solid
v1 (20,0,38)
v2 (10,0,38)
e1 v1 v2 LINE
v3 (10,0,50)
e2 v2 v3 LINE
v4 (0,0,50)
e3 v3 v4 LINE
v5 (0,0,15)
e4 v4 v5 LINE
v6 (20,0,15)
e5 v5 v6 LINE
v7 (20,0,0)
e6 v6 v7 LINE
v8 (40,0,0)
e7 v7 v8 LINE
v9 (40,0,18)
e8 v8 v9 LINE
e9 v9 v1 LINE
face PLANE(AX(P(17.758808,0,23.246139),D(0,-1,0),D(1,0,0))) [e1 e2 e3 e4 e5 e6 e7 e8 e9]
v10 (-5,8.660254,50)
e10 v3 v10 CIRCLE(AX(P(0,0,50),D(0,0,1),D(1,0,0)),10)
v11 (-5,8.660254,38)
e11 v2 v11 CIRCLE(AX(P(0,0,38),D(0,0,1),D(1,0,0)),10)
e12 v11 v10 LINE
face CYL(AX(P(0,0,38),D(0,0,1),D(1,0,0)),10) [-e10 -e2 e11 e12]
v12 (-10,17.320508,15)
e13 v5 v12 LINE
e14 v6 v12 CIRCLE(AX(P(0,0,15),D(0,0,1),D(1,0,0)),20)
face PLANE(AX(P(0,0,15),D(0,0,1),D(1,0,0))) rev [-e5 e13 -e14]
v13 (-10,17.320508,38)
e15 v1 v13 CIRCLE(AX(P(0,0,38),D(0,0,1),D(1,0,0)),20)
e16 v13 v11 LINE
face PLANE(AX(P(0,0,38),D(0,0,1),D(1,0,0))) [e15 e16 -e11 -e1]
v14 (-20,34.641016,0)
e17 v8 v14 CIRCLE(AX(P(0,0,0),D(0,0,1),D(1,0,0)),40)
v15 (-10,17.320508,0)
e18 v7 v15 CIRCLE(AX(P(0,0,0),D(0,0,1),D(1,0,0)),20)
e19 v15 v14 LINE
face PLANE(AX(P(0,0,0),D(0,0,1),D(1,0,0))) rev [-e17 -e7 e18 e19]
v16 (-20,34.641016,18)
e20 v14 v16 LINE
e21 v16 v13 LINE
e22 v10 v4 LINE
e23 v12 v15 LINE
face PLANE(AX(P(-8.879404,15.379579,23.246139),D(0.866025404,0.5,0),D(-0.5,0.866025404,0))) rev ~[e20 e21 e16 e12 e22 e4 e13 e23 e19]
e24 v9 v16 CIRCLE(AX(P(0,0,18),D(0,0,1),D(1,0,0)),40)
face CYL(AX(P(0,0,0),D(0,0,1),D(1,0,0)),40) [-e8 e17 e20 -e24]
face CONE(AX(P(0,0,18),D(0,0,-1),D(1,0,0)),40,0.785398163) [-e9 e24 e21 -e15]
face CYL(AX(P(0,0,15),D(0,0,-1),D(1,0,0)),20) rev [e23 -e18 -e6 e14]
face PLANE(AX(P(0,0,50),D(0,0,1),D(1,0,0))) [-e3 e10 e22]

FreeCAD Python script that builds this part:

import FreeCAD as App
import Part
import Sketcher


def add_polygon(sketch, points):
    """Adds a closed chain of lines whose ends are joined by coincident constraints."""
    first, n = sketch.GeometryCount, len(points)
    for a, b in zip(points, points[1:] + points[:1]):
        sketch.addGeometry(Part.LineSegment(App.Vector(*a, 0), App.Vector(*b, 0)), False)
    for i in range(n):
        sketch.addConstraint(Sketcher.Constraint("Coincident", first + i, 2, first + (i + 1) % n, 1))

doc = App.newDocument("Part")
params = doc.addObject("Spreadsheet::Sheet", "Params")
for row, (alias, value) in enumerate([
    ("sketch1_width", "20 mm"),
    ("sketch1_height", "15 mm"),
    ("sketch1_height2", "18 mm"),
    ("sketch1_height3", "12 mm"),
    ("sketch1_height4", "35 mm"),
    ("revolution_angle", "120 deg"),
], start=1):
    params.set(f"A{row}", alias)
    params.set(f"B{row}", "=" + value)
    params.setAlias(f"B{row}", alias)

body = doc.addObject("PartDesign::Body", "Body")

# Sketch on XZ plane
sketch1 = body.newObject("Sketcher::SketchObject", "Sketch")
sketch1.AttachmentSupport = (doc.getObject("XZ_Plane"), [""])
sketch1.MapMode = "FlatFace"
add_polygon(sketch1, [(20, 15), (20, 0), (40, 0), (40, 18), (20, 38), (10, 38), (10, 50), (0, 50), (0, 15)])  # lines 0-8
sketch1.addConstraint(Sketcher.Constraint("Vertical", 0))
sketch1.addConstraint(Sketcher.Constraint("Horizontal", 1))
sketch1.addConstraint(Sketcher.Constraint("Vertical", 2))
sketch1.addConstraint(Sketcher.Constraint("Horizontal", 4))
sketch1.addConstraint(Sketcher.Constraint("Vertical", 5))
sketch1.addConstraint(Sketcher.Constraint("Horizontal", 6))
sketch1.addConstraint(Sketcher.Constraint("Vertical", 7))
sketch1.addConstraint(Sketcher.Constraint("Horizontal", 8))
sketch1.addConstraint(Sketcher.Constraint("PointOnObject", 0, 2, -1))
sketch1.addConstraint(Sketcher.Constraint("PointOnObject", 6, 2, -2))
sketch1.addConstraint(Sketcher.Constraint("Vertical", 0, 2, 3, 2))
sketch1.addConstraint(Sketcher.Constraint("Equal", 4, 6))
sketch1.addConstraint(Sketcher.Constraint("Equal", 1, 8))
sketch1.addConstraint(Sketcher.Constraint("DistanceX", 1, 1, 1, 2, 20.0))
sketch1.addConstraint(Sketcher.Constraint("DistanceY", 0, 2, 0, 1, 15.0))
sketch1.addConstraint(Sketcher.Constraint("DistanceY", 2, 1, 2, 2, 18.0))
sketch1.addConstraint(Sketcher.Constraint("DistanceY", 5, 1, 5, 2, 12.0))
sketch1.addConstraint(Sketcher.Constraint("DistanceY", 7, 2, 7, 1, 35.0))
sketch1.setExpression("Constraints[22]", "Params.sketch1_width")
sketch1.setExpression("Constraints[23]", "Params.sketch1_height")
sketch1.setExpression("Constraints[24]", "Params.sketch1_height2")
sketch1.setExpression("Constraints[25]", "Params.sketch1_height3")
sketch1.setExpression("Constraints[26]", "Params.sketch1_height4")
revolution = body.newObject("PartDesign::Revolution", "Revolution")
revolution.Profile = sketch1
revolution.ReferenceAxis = (sketch1, ["V_Axis"])
revolution.setExpression("Angle", "Params.revolution_angle")

doc.recompute()
